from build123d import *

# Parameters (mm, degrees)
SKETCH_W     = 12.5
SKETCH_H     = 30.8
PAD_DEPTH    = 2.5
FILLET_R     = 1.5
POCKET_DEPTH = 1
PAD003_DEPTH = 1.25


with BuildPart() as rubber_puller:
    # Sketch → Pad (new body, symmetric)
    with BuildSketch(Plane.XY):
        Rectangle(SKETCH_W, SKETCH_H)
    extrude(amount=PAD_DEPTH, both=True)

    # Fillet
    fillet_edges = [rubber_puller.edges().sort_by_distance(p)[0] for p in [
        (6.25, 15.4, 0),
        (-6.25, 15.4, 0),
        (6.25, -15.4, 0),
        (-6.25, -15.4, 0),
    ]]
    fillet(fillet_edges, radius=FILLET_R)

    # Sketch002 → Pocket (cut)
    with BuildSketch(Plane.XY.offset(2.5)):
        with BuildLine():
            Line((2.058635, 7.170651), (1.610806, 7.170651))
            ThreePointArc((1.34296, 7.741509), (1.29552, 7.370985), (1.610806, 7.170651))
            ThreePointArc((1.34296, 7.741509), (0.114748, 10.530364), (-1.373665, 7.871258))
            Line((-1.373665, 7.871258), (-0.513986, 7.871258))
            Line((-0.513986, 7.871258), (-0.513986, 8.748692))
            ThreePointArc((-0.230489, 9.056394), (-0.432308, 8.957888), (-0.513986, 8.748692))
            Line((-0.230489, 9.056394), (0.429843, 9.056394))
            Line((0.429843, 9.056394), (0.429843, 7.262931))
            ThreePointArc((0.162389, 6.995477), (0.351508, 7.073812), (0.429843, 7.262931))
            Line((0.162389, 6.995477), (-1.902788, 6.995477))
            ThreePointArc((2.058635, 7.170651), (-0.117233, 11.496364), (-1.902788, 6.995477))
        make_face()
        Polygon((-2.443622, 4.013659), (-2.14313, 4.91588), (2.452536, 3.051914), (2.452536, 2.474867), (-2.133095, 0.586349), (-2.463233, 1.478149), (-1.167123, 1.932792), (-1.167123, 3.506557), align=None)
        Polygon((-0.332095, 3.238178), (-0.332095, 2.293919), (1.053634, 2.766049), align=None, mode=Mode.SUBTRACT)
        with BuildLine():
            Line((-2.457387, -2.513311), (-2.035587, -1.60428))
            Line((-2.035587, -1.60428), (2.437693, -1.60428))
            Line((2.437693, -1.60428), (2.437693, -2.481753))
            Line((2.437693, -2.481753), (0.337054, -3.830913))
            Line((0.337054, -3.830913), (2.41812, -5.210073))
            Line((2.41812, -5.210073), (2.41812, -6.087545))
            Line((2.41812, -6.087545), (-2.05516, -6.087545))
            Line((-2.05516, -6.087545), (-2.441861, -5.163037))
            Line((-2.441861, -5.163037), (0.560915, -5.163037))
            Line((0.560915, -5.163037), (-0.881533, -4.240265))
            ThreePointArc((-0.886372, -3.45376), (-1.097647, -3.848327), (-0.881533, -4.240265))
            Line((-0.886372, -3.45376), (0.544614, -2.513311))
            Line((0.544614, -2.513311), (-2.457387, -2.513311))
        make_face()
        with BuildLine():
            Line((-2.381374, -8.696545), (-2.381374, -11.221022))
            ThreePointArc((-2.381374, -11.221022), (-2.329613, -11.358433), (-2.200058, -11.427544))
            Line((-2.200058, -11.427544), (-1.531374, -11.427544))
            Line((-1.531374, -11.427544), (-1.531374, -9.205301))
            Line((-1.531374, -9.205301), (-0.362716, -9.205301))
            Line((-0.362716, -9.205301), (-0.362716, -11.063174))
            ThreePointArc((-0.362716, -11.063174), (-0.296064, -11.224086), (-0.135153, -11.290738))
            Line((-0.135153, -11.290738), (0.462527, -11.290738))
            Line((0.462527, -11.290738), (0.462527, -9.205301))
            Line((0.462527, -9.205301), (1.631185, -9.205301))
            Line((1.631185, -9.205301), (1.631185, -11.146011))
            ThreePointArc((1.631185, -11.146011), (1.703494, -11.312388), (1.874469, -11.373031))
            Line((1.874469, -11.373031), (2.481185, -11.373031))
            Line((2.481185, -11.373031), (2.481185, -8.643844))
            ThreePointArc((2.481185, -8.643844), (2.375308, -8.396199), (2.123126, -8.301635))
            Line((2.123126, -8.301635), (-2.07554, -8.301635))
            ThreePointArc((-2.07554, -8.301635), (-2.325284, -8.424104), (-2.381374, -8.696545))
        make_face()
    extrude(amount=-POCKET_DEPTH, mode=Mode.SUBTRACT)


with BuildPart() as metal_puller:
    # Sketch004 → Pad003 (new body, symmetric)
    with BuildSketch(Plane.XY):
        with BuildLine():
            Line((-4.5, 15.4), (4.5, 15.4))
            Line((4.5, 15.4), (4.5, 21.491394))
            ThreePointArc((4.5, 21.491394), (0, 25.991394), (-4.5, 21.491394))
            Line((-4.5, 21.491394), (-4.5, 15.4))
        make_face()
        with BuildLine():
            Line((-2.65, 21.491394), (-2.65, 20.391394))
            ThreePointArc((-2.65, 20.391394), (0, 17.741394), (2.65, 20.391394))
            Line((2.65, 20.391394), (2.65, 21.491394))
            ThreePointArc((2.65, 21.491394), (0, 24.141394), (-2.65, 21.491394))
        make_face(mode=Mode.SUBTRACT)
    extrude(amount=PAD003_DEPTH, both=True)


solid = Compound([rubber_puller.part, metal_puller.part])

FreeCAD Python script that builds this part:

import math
import FreeCAD as App
import Part
import Sketcher


def edges_at(feature, points):
    """Names of the edges that pass closest to the given points."""
    edges = feature.Shape.Edges
    near = lambda p: min(range(len(edges)), key=lambda i: edges[i].distToShape(Part.Vertex(*p))[0])
    return sorted({f"Edge{near(p) + 1}" for p in points})

doc = App.newDocument("Part")
body = doc.addObject("PartDesign::Body", "Body")

# Sketch on XY plane
sketch1 = body.newObject("Sketcher::SketchObject", "Sketch")
sketch1.AttachmentSupport = (doc.getObject("XY_Plane"), [""])
sketch1.MapMode = "FlatFace"
sketch1.addGeometry([
    Part.LineSegment(App.Vector(-6, 15, 0), App.Vector(-6, -15, 0)),
    Part.LineSegment(App.Vector(-6, -15, 0), App.Vector(6, -15, 0)),
    Part.LineSegment(App.Vector(6, -15, 0), App.Vector(6, 15, 0)),
    Part.LineSegment(App.Vector(6, 15, 0), App.Vector(-6, 15, 0)),
], False)
sketch1.addConstraint([
    Sketcher.Constraint("Coincident", 0, 2, 1, 1),
    Sketcher.Constraint("Coincident", 1, 2, 2, 1),
    Sketcher.Constraint("Coincident", 2, 2, 3, 1),
    Sketcher.Constraint("Coincident", 3, 2, 0, 1),
    Sketcher.Constraint("Vertical", 0),
    Sketcher.Constraint("Horizontal", 1),
    Sketcher.Constraint("Vertical", 2),
    Sketcher.Constraint("Horizontal", 3),
    Sketcher.Constraint("Symmetric", 0, 2, 2, 2, -1, 1),
    Sketcher.Constraint("DistanceX", 1, 1, 1, 2, 12.5),
    Sketcher.Constraint("DistanceY", 0, 2, 0, 1, 30.8),
])
pad1 = body.newObject("PartDesign::Pad", "Pad")
pad1.Profile = sketch1
pad1.Length = 5
pad1.Midplane = True
doc.recompute()

fillet = body.newObject("PartDesign::Fillet", "Fillet")
fillet.Base = (pad1, edges_at(pad1, [
    (6.25, 15.4, 0),
    (-6.25, 15.4, 0),
    (6.25, -15.4, 0),
    (-6.25, -15.4, 0),
]))
fillet.Radius = 1.5

# Sketch on XY plane
sketch2 = body.newObject("Sketcher::SketchObject", "Sketch001")
sketch2.AttachmentSupport = (doc.getObject("XY_Plane"), [""])
sketch2.MapMode = "FlatFace"
sketch2.AttachmentOffset = App.Placement(App.Vector(0, 0, 2.5), App.Rotation())
sketch2.addGeometry([
    Part.LineSegment(App.Vector(1.610806, 7.170651, 0), App.Vector(2.058635, 7.170651, 0)),  # 0
    Part.ArcOfCircle(Part.Circle(App.Vector(0, 8.845237, 0), App.Vector(0, 0, 1), 2.653717), math.radians(-39.126461), math.radians(224.190397)),  # 1
    Part.LineSegment(App.Vector(-1.902788, 6.995477, 0), App.Vector(0.162389, 6.995477, 0)),  # 2
    Part.ArcOfCircle(Part.Circle(App.Vector(0.162391, 7.262929, 0), App.Vector(0, 0, 1), 0.267452), math.radians(-90.000339), math.radians(0.000339)),  # 3
    Part.LineSegment(App.Vector(0.429843, 7.262931, 0), App.Vector(0.429843, 9.056394, 0)),  # 4
    Part.LineSegment(App.Vector(0.429843, 9.056394, 0), App.Vector(-0.230489, 9.056394, 0)),  # 5
    Part.ArcOfCircle(Part.Circle(App.Vector(-0.205253, 8.748694, 0), App.Vector(0, 0, 1), 0.308733), math.radians(94.688632), math.radians(180.000382)),  # 6
    Part.LineSegment(App.Vector(-0.513986, 8.748692, 0), App.Vector(-0.513986, 7.871258, 0)),  # 7
    Part.LineSegment(App.Vector(-0.513986, 7.871258, 0), App.Vector(-1.373665, 7.871258, 0)),  # 8
    Part.ArcOfCircle(Part.Circle(App.Vector(0.033523, 8.829713, 0), App.Vector(0, 0, 1), 1.70259), math.radians(-39.728168), math.radians(214.259305)),  # 9
    Part.ArcOfCircle(Part.Circle(App.Vector(1.610806, 7.518916, 0), App.Vector(0, 0, 1), 0.348265), math.radians(140.271801), math.radians(270.000044)),  # 10
    Part.LineSegment(App.Vector(-2.14313, 4.91588, 0), App.Vector(-2.443622, 4.013659, 0)),  # 11
    Part.LineSegment(App.Vector(-2.443622, 4.013659, 0), App.Vector(-1.167123, 3.506557, 0)),  # 12
    Part.LineSegment(App.Vector(-1.167123, 3.506557, 0), App.Vector(-1.167123, 1.932792, 0)),  # 13
    Part.LineSegment(App.Vector(-1.167123, 1.932792, 0), App.Vector(-2.463233, 1.478149, 0)),  # 14
    Part.LineSegment(App.Vector(-2.463233, 1.478149, 0), App.Vector(-2.133095, 0.586349, 0)),  # 15
    Part.LineSegment(App.Vector(-2.133095, 0.586349, 0), App.Vector(2.452536, 2.474867, 0)),  # 16
    Part.LineSegment(App.Vector(2.452536, 2.474867, 0), App.Vector(2.452536, 3.051914, 0)),  # 17
    Part.LineSegment(App.Vector(2.452536, 3.051914, 0), App.Vector(-2.14313, 4.91588, 0)),  # 18
    Part.LineSegment(App.Vector(-0.332095, 3.238178, 0), App.Vector(1.053634, 2.766049, 0)),  # 19
    Part.LineSegment(App.Vector(1.053634, 2.766049, 0), App.Vector(-0.332095, 2.293919, 0)),  # 20
    Part.LineSegment(App.Vector(-0.332095, 2.293919, 0), App.Vector(-0.332095, 3.238178, 0)),  # 21
    Part.LineSegment(App.Vector(-2.035587, -1.60428, 0), App.Vector(-2.457387, -2.513311, 0)),  # 22
    Part.LineSegment(App.Vector(-2.457387, -2.513311, 0), App.Vector(0.544614, -2.513311, 0)),  # 23
    Part.LineSegment(App.Vector(0.544614, -2.513311, 0), App.Vector(-0.886372, -3.45376, 0)),  # 24
    Part.ArcOfCircle(Part.Circle(App.Vector(-0.628957, -3.845444, 0), App.Vector(0, 0, 1), 0.468699), math.radians(123.312951), math.radians(237.392069)),  # 25
    Part.LineSegment(App.Vector(-0.881533, -4.240265, 0), App.Vector(0.560915, -5.163037, 0)),  # 26
    Part.LineSegment(App.Vector(0.560915, -5.163037, 0), App.Vector(-2.441861, -5.163037, 0)),  # 27
    Part.LineSegment(App.Vector(-2.441861, -5.163037, 0), App.Vector(-2.05516, -6.087545, 0)),  # 28
    Part.LineSegment(App.Vector(-2.05516, -6.087545, 0), App.Vector(2.41812, -6.087545, 0)),  # 29
    Part.LineSegment(App.Vector(2.41812, -6.087545, 0), App.Vector(2.41812, -5.210073, 0)),  # 30
    Part.LineSegment(App.Vector(2.41812, -5.210073, 0), App.Vector(0.337054, -3.830913, 0)),  # 31
    Part.LineSegment(App.Vector(0.337054, -3.830913, 0), App.Vector(2.437693, -2.481753, 0)),  # 32
    Part.LineSegment(App.Vector(2.437693, -2.481753, 0), App.Vector(2.437693, -1.60428, 0)),  # 33
    Part.LineSegment(App.Vector(2.437693, -1.60428, 0), App.Vector(-2.035587, -1.60428, 0)),  # 34
    Part.LineSegment(App.Vector(-2.381374, -8.696545, 0), App.Vector(-2.381374, -11.221022, 0)),  # 35
    Part.ArcOfCircle(Part.Circle(App.Vector(-2.1731, -11.221022, 0), App.Vector(0, 0, 1), 0.208274), math.radians(179.99993), math.radians(262.563103)),  # 36
    Part.LineSegment(App.Vector(-2.200058, -11.427544, 0), App.Vector(-1.531374, -11.427544, 0)),  # 37
    Part.LineSegment(App.Vector(-1.531374, -11.427544, 0), App.Vector(-1.531374, -9.205301, 0)),  # 38
    Part.LineSegment(App.Vector(-1.531374, -9.205301, 0), App.Vector(-0.362716, -9.205301, 0)),  # 39
    Part.LineSegment(App.Vector(-0.362716, -9.205301, 0), App.Vector(-0.362716, -11.063174, 0)),  # 40
    Part.ArcOfCircle(Part.Circle(App.Vector(-0.135152, -11.063174, 0), App.Vector(0, 0, 1), 0.227564), math.radians(-179.999959), math.radians(-90.000293)),  # 41
    Part.LineSegment(App.Vector(-0.135153, -11.290738, 0), App.Vector(0.462527, -11.290738, 0)),  # 42
    Part.LineSegment(App.Vector(0.462527, -11.290738, 0), App.Vector(0.462527, -9.205301, 0)),  # 43
    Part.LineSegment(App.Vector(0.462527, -9.205301, 0), App.Vector(1.631185, -9.205301, 0)),  # 44
    Part.LineSegment(App.Vector(1.631185, -9.205301, 0), App.Vector(1.631185, -11.146011, 0)),  # 45
    Part.ArcOfCircle(Part.Circle(App.Vector(1.858748, -11.146012, 0), App.Vector(0, 0, 1), 0.227563), math.radians(179.999874), math.radians(273.96134)),  # 46
    Part.LineSegment(App.Vector(1.874469, -11.373031, 0), App.Vector(2.481185, -11.373031, 0)),  # 47
    Part.LineSegment(App.Vector(2.481185, -11.373031, 0), App.Vector(2.481185, -8.643844, 0)),  # 48
    Part.ArcOfCircle(Part.Circle(App.Vector(2.138624, -8.643845, 0), App.Vector(0, 0, 1), 0.342561), math.radians(0.000243), math.radians(92.593002)),  # 49
    Part.LineSegment(App.Vector(2.123126, -8.301635, 0), App.Vector(-2.07554, -8.301635, 0)),  # 50
    Part.ArcOfCircle(Part.Circle(App.Vector(-2.075539, -8.617516, 0), App.Vector(0, 0, 1), 0.315881), math.radians(90.000172), math.radians(194.488579)),  # 51
], False)
sketch2.addConstraint([
    Sketcher.Constraint("Coincident", 0, 2, 1, 1),
    Sketcher.Constraint("Coincident", 1, 2, 2, 1),
    Sketcher.Constraint("Coincident", 2, 2, 3, 1),
    Sketcher.Constraint("Coincident", 3, 2, 4, 1),
    Sketcher.Constraint("Coincident", 4, 2, 5, 1),
    Sketcher.Constraint("Coincident", 5, 2, 6, 1),
    Sketcher.Constraint("Coincident", 6, 2, 7, 1),
    Sketcher.Constraint("Coincident", 7, 2, 8, 1),
    Sketcher.Constraint("Coincident", 8, 2, 9, 2),
    Sketcher.Constraint("Coincident", 9, 1, 10, 1),
    Sketcher.Constraint("Coincident", 10, 2, 0, 1),
    Sketcher.Constraint("Coincident", 11, 2, 12, 1),
    Sketcher.Constraint("Coincident", 12, 2, 13, 1),
    Sketcher.Constraint("Coincident", 13, 2, 14, 1),
    Sketcher.Constraint("Coincident", 14, 2, 15, 1),
    Sketcher.Constraint("Coincident", 15, 2, 16, 1),
    Sketcher.Constraint("Coincident", 16, 2, 17, 1),
    Sketcher.Constraint("Coincident", 17, 2, 18, 1),
    Sketcher.Constraint("Coincident", 18, 2, 11, 1),
    Sketcher.Constraint("Coincident", 19, 2, 20, 1),
    Sketcher.Constraint("Coincident", 20, 2, 21, 1),
    Sketcher.Constraint("Coincident", 21, 2, 19, 1),
    Sketcher.Constraint("Coincident", 22, 2, 23, 1),
    Sketcher.Constraint("Coincident", 23, 2, 24, 1),
    Sketcher.Constraint("Coincident", 24, 2, 25, 1),
    Sketcher.Constraint("Coincident", 25, 2, 26, 1),
    Sketcher.Constraint("Coincident", 26, 2, 27, 1),
    Sketcher.Constraint("Coincident", 27, 2, 28, 1),
    Sketcher.Constraint("Coincident", 28, 2, 29, 1),
    Sketcher.Constraint("Coincident", 29, 2, 30, 1),
    Sketcher.Constraint("Coincident", 30, 2, 31, 1),
    Sketcher.Constraint("Coincident", 31, 2, 32, 1),
    Sketcher.Constraint("Coincident", 32, 2, 33, 1),
    Sketcher.Constraint("Coincident", 33, 2, 34, 1),
    Sketcher.Constraint("Coincident", 34, 2, 22, 1),
    Sketcher.Constraint("Coincident", 35, 2, 36, 1),
    Sketcher.Constraint("Coincident", 36, 2, 37, 1),
    Sketcher.Constraint("Coincident", 37, 2, 38, 1),
    Sketcher.Constraint("Coincident", 38, 2, 39, 1),
    Sketcher.Constraint("Coincident", 39, 2, 40, 1),
    Sketcher.Constraint("Coincident", 40, 2, 41, 1),
    Sketcher.Constraint("Coincident", 41, 2, 42, 1),
    Sketcher.Constraint("Coincident", 42, 2, 43, 1),
    Sketcher.Constraint("Coincident", 43, 2, 44, 1),
    Sketcher.Constraint("Coincident", 44, 2, 45, 1),
    Sketcher.Constraint("Coincident", 45, 2, 46, 1),
    Sketcher.Constraint("Coincident", 46, 2, 47, 1),
    Sketcher.Constraint("Coincident", 47, 2, 48, 1),
    Sketcher.Constraint("Coincident", 48, 2, 49, 1),
    Sketcher.Constraint("Coincident", 49, 2, 50, 1),
    Sketcher.Constraint("Coincident", 50, 2, 51, 1),
    Sketcher.Constraint("Coincident", 51, 2, 35, 1),
    Sketcher.Constraint("Horizontal", 0),
    Sketcher.Constraint("Horizontal", 2),
    Sketcher.Constraint("Vertical", 4),
    Sketcher.Constraint("Horizontal", 5),
    Sketcher.Constraint("Vertical", 7),
    Sketcher.Constraint("Horizontal", 8),
    Sketcher.Constraint("Vertical", 13),
    Sketcher.Constraint("Vertical", 17),
    Sketcher.Constraint("Vertical", 21),
    Sketcher.Constraint("Horizontal", 23),
    Sketcher.Constraint("Horizontal", 27),
    Sketcher.Constraint("Horizontal", 29),
    Sketcher.Constraint("Vertical", 30),
    Sketcher.Constraint("Vertical", 33),
    Sketcher.Constraint("Horizontal", 34),
    Sketcher.Constraint("Vertical", 35),
    Sketcher.Constraint("Horizontal", 37),
    Sketcher.Constraint("Vertical", 38),
    Sketcher.Constraint("Horizontal", 39),
    Sketcher.Constraint("Vertical", 40),
    Sketcher.Constraint("Horizontal", 42),
    Sketcher.Constraint("Vertical", 43),
    Sketcher.Constraint("Horizontal", 44),
    Sketcher.Constraint("Vertical", 45),
    Sketcher.Constraint("Horizontal", 47),
    Sketcher.Constraint("Vertical", 48),
    Sketcher.Constraint("Horizontal", 50),
    Sketcher.Constraint("PointOnObject", 1, 3, -2),
    Sketcher.Constraint("Radius", 25, 0.468699),
    Sketcher.Constraint("DistanceX", 23, 1, 23, 2, 3.002001),
    Sketcher.Constraint("Radius", 9, 1.70259),
    Sketcher.Constraint("Radius", 49, 0.342561),
    Sketcher.Constraint("Radius", 51, 0.315881),
    Sketcher.Constraint("Radius", 1, 2.653717),
    Sketcher.Constraint("Radius", 3, 0.267452),
    Sketcher.Constraint("Radius", 6, 0.308733),
    Sketcher.Constraint("Radius", 10, 0.348265),
    Sketcher.Constraint("Radius", 36, 0.208274),
    Sketcher.Constraint("Radius", 41, 0.227564),
    Sketcher.Constraint("Radius", 46, 0.227563),
    Sketcher.Constraint("DistanceX", 0, 1, 0, 2, 0.447829),
    Sketcher.Constraint("DistanceX", 5, 2, 5, 1, 0.660332),
    Sketcher.Constraint("DistanceX", 8, 2, 8, 1, 0.859679),
    Sketcher.Constraint("DistanceX", 29, 1, 29, 2, 4.47328),
    Sketcher.Constraint("DistanceX", 34, 2, 34, 1, 4.47328),
    Sketcher.Constraint("DistanceX", 42, 1, 42, 2, 0.59768),
    Sketcher.Constraint("DistanceX", 44, 1, 44, 2, 1.168658),
    Sketcher.Constraint("DistanceY", 21, 1, 21, 2, 0.944259),
    Sketcher.Constraint("DistanceY", 45, 2, 45, 1, 1.94071),
    Sketcher.Constraint("DistanceX", 36, 3, -1, 1, 2.1731),
    Sketcher.Constraint("DistanceY", 38, 2, -1, 1, 9.205301),
    Sketcher.Constraint("DistanceY", 43, 2, -1, 1, 9.205301),
    Sketcher.Constraint("Distance", 19, 1.46395),
    Sketcher.Constraint("Distance", 20, 1.463951),
    Sketcher.Constraint("Distance", 31, 2.496581),
    Sketcher.Constraint("Distance", 32, 2.496581),
    Sketcher.Constraint("DistanceX", 2, 1, 2, 2, 2.065177),
    Sketcher.Constraint("DistanceX", 27, 2, 27, 1, 3.002776),
    Sketcher.Constraint("DistanceX", 37, 1, 37, 2, 0.668684),
    Sketcher.Constraint("DistanceX", 39, 1, 39, 2, 1.168658),
    Sketcher.Constraint("DistanceX", 47, 1, 47, 2, 0.606716),
    Sketcher.Constraint("DistanceX", 50, 2, 50, 1, 4.198666),
    Sketcher.Constraint("DistanceY", 4, 1, 4, 2, 1.793463),
    Sketcher.Constraint("DistanceY", 7, 2, 7, 1, 0.877434),
    Sketcher.Constraint("DistanceY", 13, 2, 13, 1, 1.573765),
    Sketcher.Constraint("DistanceY", 17, 1, 17, 2, 0.577047),
    Sketcher.Constraint("DistanceY", 30, 1, 30, 2, 0.877472),
    Sketcher.Constraint("DistanceY", 33, 1, 33, 2, 0.877473),
    Sketcher.Constraint("DistanceY", 35, 2, 35, 1, 2.524477),
    Sketcher.Constraint("DistanceY", 38, 1, 38, 2, 2.222243),
    Sketcher.Constraint("DistanceY", 40, 2, 40, 1, 1.857873),
    Sketcher.Constraint("DistanceY", 43, 1, 43, 2, 2.085437),
    Sketcher.Constraint("DistanceY", 48, 1, 48, 2, 2.729187),
    Sketcher.Constraint("DistanceX", -1, 1, 3, 3, 0.162391),
    Sketcher.Constraint("DistanceY", -1, 1, 3, 3, 7.262929),
    Sketcher.Constraint("DistanceX", 41, 3, -1, 1, 0.135152),
    Sketcher.Constraint("DistanceX", -1, 1, 46, 3, 1.858748),
    Sketcher.Constraint("DistanceY", 46, 3, -1, 1, 11.146012),
    Sketcher.Constraint("DistanceX", 51, 3, -1, 1, 2.075539),
    Sketcher.Constraint("DistanceY", -1, 1, 0, 2, 7.170651),
    Sketcher.Constraint("DistanceX", -1, 1, 2, 2, 0.162389),
    Sketcher.Constraint("DistanceY", -1, 1, 3, 2, 7.262931),
    Sketcher.Constraint("DistanceX", -1, 1, 9, 1, 1.34296),
    Sketcher.Constraint("DistanceY", -1, 1, 9, 1, 7.741509),
    Sketcher.Constraint("DistanceX", 11, 2, -1, 1, 2.443622),
    Sketcher.Constraint("DistanceY", -1, 1, 11, 2, 4.013659),
    Sketcher.Constraint("DistanceY", -1, 1, 14, 2, 1.478149),
    Sketcher.Constraint("DistanceY", -1, 1, 15, 2, 0.586349),
    Sketcher.Constraint("DistanceX", 18, 2, -1, 1, 2.14313),
    Sketcher.Constraint("DistanceY", -1, 1, 18, 2, 4.91588),
    Sketcher.Constraint("DistanceY", -1, 1, 19, 2, 2.766049),
    Sketcher.Constraint("DistanceY", 22, 2, -1, 1, 2.513311),
    Sketcher.Constraint("DistanceY", 24, 2, -1, 1, 3.45376),
    Sketcher.Constraint("DistanceX", 27, 2, -1, 1, 2.441861),
    Sketcher.Constraint("DistanceX", 28, 2, -1, 1, 2.05516),
    Sketcher.Constraint("DistanceY", 33, 2, -1, 1, 1.60428),
    Sketcher.Constraint("DistanceX", -1, 1, 46, 2, 1.874469),
    Sketcher.Constraint("DistanceX", 50, 2, -1, 1, 2.07554),
    Sketcher.Constraint("Distance", 12, 1.373536),
    Sketcher.Constraint("Distance", 14, 1.373536),
    Sketcher.Constraint("Distance", 15, 0.950946),
    Sketcher.Constraint("Distance", 16, 4.959285),
    Sketcher.Constraint("Distance", 18, 4.959286),
    Sketcher.Constraint("Distance", 22, 1.002124),
    Sketcher.Constraint("Distance", 24, 1.712357),
    Sketcher.Constraint("Distance", 26, 1.712356),
    Sketcher.Constraint("Distance", 28, 1.002124),
    Sketcher.Constraint("DistanceX", 6, 3, -1, 1, 0.205253),
    Sketcher.Constraint("DistanceX", -1, 1, 9, 3, 0.033523),
    Sketcher.Constraint("DistanceX", 25, 3, -1, 1, 0.628957),
    Sketcher.Constraint("DistanceY", 25, 3, -1, 1, 3.845444),
    Sketcher.Constraint("DistanceY", 49, 3, -1, 1, 8.643845),
    Sketcher.Constraint("DistanceX", 12, 2, -1, 1, 1.167123),
    Sketcher.Constraint("DistanceX", -1, 1, 19, 2, 1.053634),
    Sketcher.Constraint("DistanceX", 25, 2, -1, 1, 0.881533),
])
pocket1 = body.newObject("PartDesign::Pocket", "Pocket")
pocket1.Profile = sketch2
pocket1.Length = 1
body2 = doc.addObject("PartDesign::Body", "Body001")

# Sketch on XY plane
sketch3 = body2.newObject("Sketcher::SketchObject", "Sketch002")
sketch3.AttachmentSupport = (doc.getObject("XY_Plane001"), [""])
sketch3.MapMode = "FlatFace"
sketch3.addGeometry([
    Part.LineSegment(App.Vector(-4.5, 15.4, 0), App.Vector(4.5, 15.4, 0)),  # 0
    Part.LineSegment(App.Vector(4.5, 15.4, 0), App.Vector(4.5, 21.5, 0)),  # 1
    Part.ArcOfCircle(Part.Circle(App.Vector(0, 21.5, 0), App.Vector(0, 0, 1), 4.5), math.radians(0), math.radians(180)),  # 2
    Part.LineSegment(App.Vector(-4.5, 21.5, 0), App.Vector(-4.5, 15.4, 0)),  # 3
    Part.LineSegment(App.Vector(-2.6, 20.4, 0), App.Vector(-2.6, 21.5, 0)),  # 4
    Part.ArcOfCircle(Part.Circle(App.Vector(0, 21.5, 0), App.Vector(0, 0, 1), 2.6), math.radians(0), math.radians(180)),  # 5
    Part.LineSegment(App.Vector(2.6, 21.5, 0), App.Vector(2.6, 20.4, 0)),  # 6
    Part.ArcOfCircle(Part.Circle(App.Vector(0, 20.4, 0), App.Vector(0, 0, 1), 2.6), math.radians(180), math.radians(360)),  # 7
], False)
sketch3.addConstraint([
    Sketcher.Constraint("Coincident", 0, 2, 1, 1),
    Sketcher.Constraint("Tangent", 1, 2, 2, 1),
    Sketcher.Constraint("Tangent", 2, 2, 3, 1),
    Sketcher.Constraint("Coincident", 3, 2, 0, 1),
    Sketcher.Constraint("Tangent", 4, 2, 5, 2),
    Sketcher.Constraint("Tangent", 5, 1, 6, 1),
    Sketcher.Constraint("Tangent", 6, 2, 7, 2),
    Sketcher.Constraint("Tangent", 7, 1, 4, 1),
    Sketcher.Constraint("Horizontal", 0),
    Sketcher.Constraint("Vertical", 1),
    Sketcher.Constraint("Vertical", 3),
    Sketcher.Constraint("Vertical", 4),
    Sketcher.Constraint("Vertical", 6),
    Sketcher.Constraint("Coincident", 5, 3, 2, 3),
    Sketcher.Constraint("PointOnObject", 2, 3, -2),
    Sketcher.Constraint("Radius", 2, 4.5),
    Sketcher.Constraint("Radius", 5, 2.65),
    Sketcher.Constraint("DistanceY", 4, 1, 4, 2, 1.1),
    Sketcher.Constraint("DistanceY", -1, 1, 0, 2, 15.4),
    Sketcher.Constraint("DistanceY", 1, 1, 1, 2, 6.091394),
])
pad2 = body2.newObject("PartDesign::Pad", "Pad001")
pad2.Profile = sketch3
pad2.Length = 2.5
pad2.Midplane = True

doc.recompute()
